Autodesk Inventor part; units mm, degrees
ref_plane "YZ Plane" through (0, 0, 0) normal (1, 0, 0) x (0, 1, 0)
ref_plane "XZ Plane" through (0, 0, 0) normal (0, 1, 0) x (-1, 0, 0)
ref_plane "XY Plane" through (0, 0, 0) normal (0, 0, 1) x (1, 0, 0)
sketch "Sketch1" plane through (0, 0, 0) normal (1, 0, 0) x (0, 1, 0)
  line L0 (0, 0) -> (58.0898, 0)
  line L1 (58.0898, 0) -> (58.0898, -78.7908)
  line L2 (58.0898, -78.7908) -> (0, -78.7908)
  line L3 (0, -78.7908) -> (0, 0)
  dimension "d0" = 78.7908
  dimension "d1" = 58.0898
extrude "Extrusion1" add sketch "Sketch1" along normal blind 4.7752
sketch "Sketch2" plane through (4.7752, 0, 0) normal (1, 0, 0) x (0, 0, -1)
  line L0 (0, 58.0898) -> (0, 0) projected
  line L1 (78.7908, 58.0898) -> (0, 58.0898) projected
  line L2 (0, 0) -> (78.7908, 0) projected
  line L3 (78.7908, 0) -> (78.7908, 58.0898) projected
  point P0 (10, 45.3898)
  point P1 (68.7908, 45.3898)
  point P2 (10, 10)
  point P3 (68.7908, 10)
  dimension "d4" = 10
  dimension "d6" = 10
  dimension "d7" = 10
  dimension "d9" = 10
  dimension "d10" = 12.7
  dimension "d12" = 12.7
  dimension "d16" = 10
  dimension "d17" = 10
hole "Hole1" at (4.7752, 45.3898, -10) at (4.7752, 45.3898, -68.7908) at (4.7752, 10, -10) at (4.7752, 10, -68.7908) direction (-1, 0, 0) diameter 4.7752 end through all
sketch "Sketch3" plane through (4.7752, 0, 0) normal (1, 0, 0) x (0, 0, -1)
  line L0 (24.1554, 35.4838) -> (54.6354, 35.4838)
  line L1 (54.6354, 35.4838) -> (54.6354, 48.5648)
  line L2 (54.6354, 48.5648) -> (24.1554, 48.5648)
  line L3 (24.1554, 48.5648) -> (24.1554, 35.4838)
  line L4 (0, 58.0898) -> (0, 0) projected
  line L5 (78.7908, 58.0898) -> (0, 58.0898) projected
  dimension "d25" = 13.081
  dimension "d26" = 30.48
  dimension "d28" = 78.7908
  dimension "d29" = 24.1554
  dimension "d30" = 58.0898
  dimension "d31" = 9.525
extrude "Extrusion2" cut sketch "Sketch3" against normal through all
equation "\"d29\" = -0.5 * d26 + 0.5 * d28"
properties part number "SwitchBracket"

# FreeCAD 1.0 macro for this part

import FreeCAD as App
import Part
import Sketcher

V = App.Vector
Q = App.Units.Quantity


def add_polygon(sketch, points):
    """Adds a closed chain of lines whose ends are joined by coincident constraints."""
    first, n = sketch.GeometryCount, len(points)
    for a, b in zip(points, points[1:] + points[:1]):
        sketch.addGeometry(Part.LineSegment(App.Vector(*a, 0), App.Vector(*b, 0)), False)
    for i in range(n):
        sketch.addConstraint(Sketcher.Constraint("Coincident", first + i, 2, first + (i + 1) % n, 1))

doc = App.newDocument("Part")
body = doc.addObject("PartDesign::Body", "Body")

# Sketch on YZ plane
sketch1 = body.newObject("Sketcher::SketchObject", "Sketch")
sketch1.AttachmentSupport = (doc.getObject("YZ_Plane"), [""])
sketch1.MapMode = "FlatFace"
add_polygon(sketch1, [(58, 0), (0, 0), (0, -79), (58, -79)])  # lines 0-3
sketch1.addConstraint([
    Sketcher.Constraint("Horizontal", 0),
    Sketcher.Constraint("Vertical", 1),
    Sketcher.Constraint("Horizontal", 2),
    Sketcher.Constraint("Vertical", 3),
    Sketcher.Constraint("Coincident", 0, 2, -1, 1),
    Sketcher.Constraint("DistanceX", 0, 2, 0, 1, Q("2.287 in")),
    Sketcher.Constraint("DistanceY", 1, 2, 1, 1, Q("3.102 in")),
])
pad1 = body.newObject("PartDesign::Pad", "Pad")
pad1.Profile = sketch1
pad1.Length = Q("0.188 in")

# Sketch on YZ plane
sketch2 = body.newObject("Sketcher::SketchObject", "Sketch001")
sketch2.AttachmentSupport = (doc.getObject("YZ_Plane"), [""])
sketch2.MapMode = "FlatFace"
sketch2.AttachmentOffset = App.Placement(V(0, 0, 0.188 * 25.4), App.Rotation())
sketch2.addGeometry([
    Part.Circle(V(45.4, -10, 0), V(0, 0, 1), 2.4),
    Part.Circle(V(45.4, -68.8, 0), V(0, 0, 1), 2.4),
    Part.Circle(V(10, -10, 0), V(0, 0, 1), 2.4),
    Part.Circle(V(10, -68.8, 0), V(0, 0, 1), 2.4),
], False)
sketch2.addConstraint([
    Sketcher.Constraint("Equal", 0, 1),
    Sketcher.Constraint("Equal", 1, 2),
    Sketcher.Constraint("Equal", 2, 3),
    Sketcher.Constraint("Horizontal", 0, 3, 2, 3),
    Sketcher.Constraint("Horizontal", 1, 3, 3, 3),
    Sketcher.Constraint("Vertical", 0, 3, 1, 3),
    Sketcher.Constraint("Vertical", 2, 3, 3, 3),
    Sketcher.Constraint("Diameter", 0, Q("0.188 in")),
    Sketcher.Constraint("DistanceX", -1, 1, 0, 3, Q("1.787 in")),
    Sketcher.Constraint("DistanceY", 0, 3, -1, 1, Q("0.3937 in")),
    Sketcher.Constraint("DistanceY", 1, 3, -1, 1, Q("2.7083 in")),
    Sketcher.Constraint("DistanceX", -1, 1, 2, 3, Q("0.3937 in")),
])
doc.recompute()
hole = body.newObject("PartDesign::Hole", "Hole")
hole.Profile = sketch2
hole.ThreadType = "None"
hole.Diameter = Q("0.188 in")
hole.DepthType = "ThroughAll"

# Sketch on YZ plane
sketch3 = body.newObject("Sketcher::SketchObject", "Sketch002")
sketch3.AttachmentSupport = (doc.getObject("YZ_Plane"), [""])
sketch3.MapMode = "FlatFace"
sketch3.AttachmentOffset = App.Placement(V(0, 0, 0.188 * 25.4), App.Rotation())
add_polygon(sketch3, [(49, -24), (35, -24), (35, -55), (49, -55)])  # lines 0-3
sketch3.addConstraint([
    Sketcher.Constraint("Horizontal", 0),
    Sketcher.Constraint("Vertical", 1),
    Sketcher.Constraint("Horizontal", 2),
    Sketcher.Constraint("Vertical", 3),
    Sketcher.Constraint("DistanceY", 1, 2, 1, 1, Q("1.2 in")),
    Sketcher.Constraint("DistanceX", 0, 2, 0, 1, Q("0.515 in")),
    Sketcher.Constraint("DistanceY", 0, 2, -1, 1, Q("0.951 in")),
    Sketcher.Constraint("DistanceX", -1, 1, 0, 2, Q("1.397 in")),
])
pocket1 = body.newObject("PartDesign::Pocket", "Pocket")
pocket1.Profile = sketch3
pocket1.Type = "ThroughAll"

doc.recompute()
